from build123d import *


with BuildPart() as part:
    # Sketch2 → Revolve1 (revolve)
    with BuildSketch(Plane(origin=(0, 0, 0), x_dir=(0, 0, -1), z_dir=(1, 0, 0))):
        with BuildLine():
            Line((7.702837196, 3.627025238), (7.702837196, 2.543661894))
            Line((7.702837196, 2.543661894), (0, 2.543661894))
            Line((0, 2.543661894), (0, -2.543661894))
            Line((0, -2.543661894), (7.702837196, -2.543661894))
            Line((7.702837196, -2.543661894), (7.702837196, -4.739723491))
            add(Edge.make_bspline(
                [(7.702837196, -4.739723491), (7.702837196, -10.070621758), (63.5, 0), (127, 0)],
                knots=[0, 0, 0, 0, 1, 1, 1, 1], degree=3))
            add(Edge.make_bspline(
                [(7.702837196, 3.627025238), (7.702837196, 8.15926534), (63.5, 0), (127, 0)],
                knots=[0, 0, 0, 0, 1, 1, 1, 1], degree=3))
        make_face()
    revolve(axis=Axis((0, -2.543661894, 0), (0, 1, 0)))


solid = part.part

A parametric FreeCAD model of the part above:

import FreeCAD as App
import Part
import Sketcher
from FreeCAD import Vector
Q = App.Units.Quantity

doc = App.newDocument("Part")
params = doc.addObject("Spreadsheet::Sheet", "Params")
for row, (alias, value) in enumerate([
    ("revolution_angle", "360 deg"),
], start=1):
    params.set(f"A{row}", alias)
    params.set(f"B{row}", "=" + value)
    params.setAlias(f"B{row}", alias)

body = doc.addObject("PartDesign::Body", "Body")

sketch1 = body.newObject("Sketcher::SketchObject", "Sketch")
sketch1.AttachmentSupport = (doc.getObject("YZ_Plane"), [""])
sketch1.MapMode = "FlatFace"
sketch1.addGeometry(Part.LineSegment(Vector(3.627025, -7.702837, 0), Vector(2.543662, -7.702837, 0)), False)
sketch1.addGeometry(Part.LineSegment(Vector(2.543662, -7.702837, 0), Vector(2.543662, 0, 0)), False)
sketch1.addGeometry(Part.LineSegment(Vector(2.543662, 0, 0), Vector(-2.543662, 0, 0)), False)
sketch1.addGeometry(Part.LineSegment(Vector(-2.543662, 0, 0), Vector(-2.543662, -7.702837, 0)), False)
sketch1.addGeometry(Part.LineSegment(Vector(-2.543662, -7.702837, 0), Vector(-4.739723, -7.702837, 0)), False)
sketch1.addGeometry(Part.BSplineCurve([Vector(-4.739723, -7.702837, 0), Vector(-10.070622, -7.702837, 0), Vector(0, -63.5, 0), Vector(0, -127, 0)], [4, 4], [0, 1], False, 3, [1, 1, 1, 1], False), False)
sketch1.addGeometry(Part.BSplineCurve([Vector(3.627025, -7.702837, 0), Vector(8.159265, -7.702837, 0), Vector(0, -63.5, 0), Vector(0, -127, 0)], [4, 4], [0, 1], False, 3, [1, 1, 1, 1], False), False)
sketch1.addConstraint(Sketcher.Constraint("Block", 5))
sketch1.addConstraint(Sketcher.Constraint("Block", 6))
sketch1.addConstraint(Sketcher.Constraint("Coincident", 0, 2, 1, 1))
sketch1.addConstraint(Sketcher.Constraint("Coincident", 1, 2, 2, 1))
sketch1.addConstraint(Sketcher.Constraint("Coincident", 2, 2, 3, 1))
sketch1.addConstraint(Sketcher.Constraint("Coincident", 3, 2, 4, 1))
sketch1.addConstraint(Sketcher.Constraint("Coincident", 4, 2, 5, 1))
sketch1.addConstraint(Sketcher.Constraint("Coincident", 6, 1, 0, 1))
sketch1.addConstraint(Sketcher.Constraint("Horizontal", 0))
sketch1.addConstraint(Sketcher.Constraint("Vertical", 1))
sketch1.addConstraint(Sketcher.Constraint("Horizontal", 2))
sketch1.addConstraint(Sketcher.Constraint("Vertical", 3))
sketch1.addConstraint(Sketcher.Constraint("Horizontal", 4))
sketch1.addConstraint(Sketcher.Constraint("Symmetric", 1, 2, 2, 2, -1, 1))
sketch1.addConstraint(Sketcher.Constraint("DistanceX", 4, 2, 4, 1, Q("2.196062 mm")))
revolution = body.newObject("PartDesign::Revolution", "Revolution")
revolution.Profile = sketch1
revolution.ReferenceAxis = (sketch1, ["H_Axis"])
revolution.setExpression("Angle", "Params.revolution_angle")

doc.recompute()
